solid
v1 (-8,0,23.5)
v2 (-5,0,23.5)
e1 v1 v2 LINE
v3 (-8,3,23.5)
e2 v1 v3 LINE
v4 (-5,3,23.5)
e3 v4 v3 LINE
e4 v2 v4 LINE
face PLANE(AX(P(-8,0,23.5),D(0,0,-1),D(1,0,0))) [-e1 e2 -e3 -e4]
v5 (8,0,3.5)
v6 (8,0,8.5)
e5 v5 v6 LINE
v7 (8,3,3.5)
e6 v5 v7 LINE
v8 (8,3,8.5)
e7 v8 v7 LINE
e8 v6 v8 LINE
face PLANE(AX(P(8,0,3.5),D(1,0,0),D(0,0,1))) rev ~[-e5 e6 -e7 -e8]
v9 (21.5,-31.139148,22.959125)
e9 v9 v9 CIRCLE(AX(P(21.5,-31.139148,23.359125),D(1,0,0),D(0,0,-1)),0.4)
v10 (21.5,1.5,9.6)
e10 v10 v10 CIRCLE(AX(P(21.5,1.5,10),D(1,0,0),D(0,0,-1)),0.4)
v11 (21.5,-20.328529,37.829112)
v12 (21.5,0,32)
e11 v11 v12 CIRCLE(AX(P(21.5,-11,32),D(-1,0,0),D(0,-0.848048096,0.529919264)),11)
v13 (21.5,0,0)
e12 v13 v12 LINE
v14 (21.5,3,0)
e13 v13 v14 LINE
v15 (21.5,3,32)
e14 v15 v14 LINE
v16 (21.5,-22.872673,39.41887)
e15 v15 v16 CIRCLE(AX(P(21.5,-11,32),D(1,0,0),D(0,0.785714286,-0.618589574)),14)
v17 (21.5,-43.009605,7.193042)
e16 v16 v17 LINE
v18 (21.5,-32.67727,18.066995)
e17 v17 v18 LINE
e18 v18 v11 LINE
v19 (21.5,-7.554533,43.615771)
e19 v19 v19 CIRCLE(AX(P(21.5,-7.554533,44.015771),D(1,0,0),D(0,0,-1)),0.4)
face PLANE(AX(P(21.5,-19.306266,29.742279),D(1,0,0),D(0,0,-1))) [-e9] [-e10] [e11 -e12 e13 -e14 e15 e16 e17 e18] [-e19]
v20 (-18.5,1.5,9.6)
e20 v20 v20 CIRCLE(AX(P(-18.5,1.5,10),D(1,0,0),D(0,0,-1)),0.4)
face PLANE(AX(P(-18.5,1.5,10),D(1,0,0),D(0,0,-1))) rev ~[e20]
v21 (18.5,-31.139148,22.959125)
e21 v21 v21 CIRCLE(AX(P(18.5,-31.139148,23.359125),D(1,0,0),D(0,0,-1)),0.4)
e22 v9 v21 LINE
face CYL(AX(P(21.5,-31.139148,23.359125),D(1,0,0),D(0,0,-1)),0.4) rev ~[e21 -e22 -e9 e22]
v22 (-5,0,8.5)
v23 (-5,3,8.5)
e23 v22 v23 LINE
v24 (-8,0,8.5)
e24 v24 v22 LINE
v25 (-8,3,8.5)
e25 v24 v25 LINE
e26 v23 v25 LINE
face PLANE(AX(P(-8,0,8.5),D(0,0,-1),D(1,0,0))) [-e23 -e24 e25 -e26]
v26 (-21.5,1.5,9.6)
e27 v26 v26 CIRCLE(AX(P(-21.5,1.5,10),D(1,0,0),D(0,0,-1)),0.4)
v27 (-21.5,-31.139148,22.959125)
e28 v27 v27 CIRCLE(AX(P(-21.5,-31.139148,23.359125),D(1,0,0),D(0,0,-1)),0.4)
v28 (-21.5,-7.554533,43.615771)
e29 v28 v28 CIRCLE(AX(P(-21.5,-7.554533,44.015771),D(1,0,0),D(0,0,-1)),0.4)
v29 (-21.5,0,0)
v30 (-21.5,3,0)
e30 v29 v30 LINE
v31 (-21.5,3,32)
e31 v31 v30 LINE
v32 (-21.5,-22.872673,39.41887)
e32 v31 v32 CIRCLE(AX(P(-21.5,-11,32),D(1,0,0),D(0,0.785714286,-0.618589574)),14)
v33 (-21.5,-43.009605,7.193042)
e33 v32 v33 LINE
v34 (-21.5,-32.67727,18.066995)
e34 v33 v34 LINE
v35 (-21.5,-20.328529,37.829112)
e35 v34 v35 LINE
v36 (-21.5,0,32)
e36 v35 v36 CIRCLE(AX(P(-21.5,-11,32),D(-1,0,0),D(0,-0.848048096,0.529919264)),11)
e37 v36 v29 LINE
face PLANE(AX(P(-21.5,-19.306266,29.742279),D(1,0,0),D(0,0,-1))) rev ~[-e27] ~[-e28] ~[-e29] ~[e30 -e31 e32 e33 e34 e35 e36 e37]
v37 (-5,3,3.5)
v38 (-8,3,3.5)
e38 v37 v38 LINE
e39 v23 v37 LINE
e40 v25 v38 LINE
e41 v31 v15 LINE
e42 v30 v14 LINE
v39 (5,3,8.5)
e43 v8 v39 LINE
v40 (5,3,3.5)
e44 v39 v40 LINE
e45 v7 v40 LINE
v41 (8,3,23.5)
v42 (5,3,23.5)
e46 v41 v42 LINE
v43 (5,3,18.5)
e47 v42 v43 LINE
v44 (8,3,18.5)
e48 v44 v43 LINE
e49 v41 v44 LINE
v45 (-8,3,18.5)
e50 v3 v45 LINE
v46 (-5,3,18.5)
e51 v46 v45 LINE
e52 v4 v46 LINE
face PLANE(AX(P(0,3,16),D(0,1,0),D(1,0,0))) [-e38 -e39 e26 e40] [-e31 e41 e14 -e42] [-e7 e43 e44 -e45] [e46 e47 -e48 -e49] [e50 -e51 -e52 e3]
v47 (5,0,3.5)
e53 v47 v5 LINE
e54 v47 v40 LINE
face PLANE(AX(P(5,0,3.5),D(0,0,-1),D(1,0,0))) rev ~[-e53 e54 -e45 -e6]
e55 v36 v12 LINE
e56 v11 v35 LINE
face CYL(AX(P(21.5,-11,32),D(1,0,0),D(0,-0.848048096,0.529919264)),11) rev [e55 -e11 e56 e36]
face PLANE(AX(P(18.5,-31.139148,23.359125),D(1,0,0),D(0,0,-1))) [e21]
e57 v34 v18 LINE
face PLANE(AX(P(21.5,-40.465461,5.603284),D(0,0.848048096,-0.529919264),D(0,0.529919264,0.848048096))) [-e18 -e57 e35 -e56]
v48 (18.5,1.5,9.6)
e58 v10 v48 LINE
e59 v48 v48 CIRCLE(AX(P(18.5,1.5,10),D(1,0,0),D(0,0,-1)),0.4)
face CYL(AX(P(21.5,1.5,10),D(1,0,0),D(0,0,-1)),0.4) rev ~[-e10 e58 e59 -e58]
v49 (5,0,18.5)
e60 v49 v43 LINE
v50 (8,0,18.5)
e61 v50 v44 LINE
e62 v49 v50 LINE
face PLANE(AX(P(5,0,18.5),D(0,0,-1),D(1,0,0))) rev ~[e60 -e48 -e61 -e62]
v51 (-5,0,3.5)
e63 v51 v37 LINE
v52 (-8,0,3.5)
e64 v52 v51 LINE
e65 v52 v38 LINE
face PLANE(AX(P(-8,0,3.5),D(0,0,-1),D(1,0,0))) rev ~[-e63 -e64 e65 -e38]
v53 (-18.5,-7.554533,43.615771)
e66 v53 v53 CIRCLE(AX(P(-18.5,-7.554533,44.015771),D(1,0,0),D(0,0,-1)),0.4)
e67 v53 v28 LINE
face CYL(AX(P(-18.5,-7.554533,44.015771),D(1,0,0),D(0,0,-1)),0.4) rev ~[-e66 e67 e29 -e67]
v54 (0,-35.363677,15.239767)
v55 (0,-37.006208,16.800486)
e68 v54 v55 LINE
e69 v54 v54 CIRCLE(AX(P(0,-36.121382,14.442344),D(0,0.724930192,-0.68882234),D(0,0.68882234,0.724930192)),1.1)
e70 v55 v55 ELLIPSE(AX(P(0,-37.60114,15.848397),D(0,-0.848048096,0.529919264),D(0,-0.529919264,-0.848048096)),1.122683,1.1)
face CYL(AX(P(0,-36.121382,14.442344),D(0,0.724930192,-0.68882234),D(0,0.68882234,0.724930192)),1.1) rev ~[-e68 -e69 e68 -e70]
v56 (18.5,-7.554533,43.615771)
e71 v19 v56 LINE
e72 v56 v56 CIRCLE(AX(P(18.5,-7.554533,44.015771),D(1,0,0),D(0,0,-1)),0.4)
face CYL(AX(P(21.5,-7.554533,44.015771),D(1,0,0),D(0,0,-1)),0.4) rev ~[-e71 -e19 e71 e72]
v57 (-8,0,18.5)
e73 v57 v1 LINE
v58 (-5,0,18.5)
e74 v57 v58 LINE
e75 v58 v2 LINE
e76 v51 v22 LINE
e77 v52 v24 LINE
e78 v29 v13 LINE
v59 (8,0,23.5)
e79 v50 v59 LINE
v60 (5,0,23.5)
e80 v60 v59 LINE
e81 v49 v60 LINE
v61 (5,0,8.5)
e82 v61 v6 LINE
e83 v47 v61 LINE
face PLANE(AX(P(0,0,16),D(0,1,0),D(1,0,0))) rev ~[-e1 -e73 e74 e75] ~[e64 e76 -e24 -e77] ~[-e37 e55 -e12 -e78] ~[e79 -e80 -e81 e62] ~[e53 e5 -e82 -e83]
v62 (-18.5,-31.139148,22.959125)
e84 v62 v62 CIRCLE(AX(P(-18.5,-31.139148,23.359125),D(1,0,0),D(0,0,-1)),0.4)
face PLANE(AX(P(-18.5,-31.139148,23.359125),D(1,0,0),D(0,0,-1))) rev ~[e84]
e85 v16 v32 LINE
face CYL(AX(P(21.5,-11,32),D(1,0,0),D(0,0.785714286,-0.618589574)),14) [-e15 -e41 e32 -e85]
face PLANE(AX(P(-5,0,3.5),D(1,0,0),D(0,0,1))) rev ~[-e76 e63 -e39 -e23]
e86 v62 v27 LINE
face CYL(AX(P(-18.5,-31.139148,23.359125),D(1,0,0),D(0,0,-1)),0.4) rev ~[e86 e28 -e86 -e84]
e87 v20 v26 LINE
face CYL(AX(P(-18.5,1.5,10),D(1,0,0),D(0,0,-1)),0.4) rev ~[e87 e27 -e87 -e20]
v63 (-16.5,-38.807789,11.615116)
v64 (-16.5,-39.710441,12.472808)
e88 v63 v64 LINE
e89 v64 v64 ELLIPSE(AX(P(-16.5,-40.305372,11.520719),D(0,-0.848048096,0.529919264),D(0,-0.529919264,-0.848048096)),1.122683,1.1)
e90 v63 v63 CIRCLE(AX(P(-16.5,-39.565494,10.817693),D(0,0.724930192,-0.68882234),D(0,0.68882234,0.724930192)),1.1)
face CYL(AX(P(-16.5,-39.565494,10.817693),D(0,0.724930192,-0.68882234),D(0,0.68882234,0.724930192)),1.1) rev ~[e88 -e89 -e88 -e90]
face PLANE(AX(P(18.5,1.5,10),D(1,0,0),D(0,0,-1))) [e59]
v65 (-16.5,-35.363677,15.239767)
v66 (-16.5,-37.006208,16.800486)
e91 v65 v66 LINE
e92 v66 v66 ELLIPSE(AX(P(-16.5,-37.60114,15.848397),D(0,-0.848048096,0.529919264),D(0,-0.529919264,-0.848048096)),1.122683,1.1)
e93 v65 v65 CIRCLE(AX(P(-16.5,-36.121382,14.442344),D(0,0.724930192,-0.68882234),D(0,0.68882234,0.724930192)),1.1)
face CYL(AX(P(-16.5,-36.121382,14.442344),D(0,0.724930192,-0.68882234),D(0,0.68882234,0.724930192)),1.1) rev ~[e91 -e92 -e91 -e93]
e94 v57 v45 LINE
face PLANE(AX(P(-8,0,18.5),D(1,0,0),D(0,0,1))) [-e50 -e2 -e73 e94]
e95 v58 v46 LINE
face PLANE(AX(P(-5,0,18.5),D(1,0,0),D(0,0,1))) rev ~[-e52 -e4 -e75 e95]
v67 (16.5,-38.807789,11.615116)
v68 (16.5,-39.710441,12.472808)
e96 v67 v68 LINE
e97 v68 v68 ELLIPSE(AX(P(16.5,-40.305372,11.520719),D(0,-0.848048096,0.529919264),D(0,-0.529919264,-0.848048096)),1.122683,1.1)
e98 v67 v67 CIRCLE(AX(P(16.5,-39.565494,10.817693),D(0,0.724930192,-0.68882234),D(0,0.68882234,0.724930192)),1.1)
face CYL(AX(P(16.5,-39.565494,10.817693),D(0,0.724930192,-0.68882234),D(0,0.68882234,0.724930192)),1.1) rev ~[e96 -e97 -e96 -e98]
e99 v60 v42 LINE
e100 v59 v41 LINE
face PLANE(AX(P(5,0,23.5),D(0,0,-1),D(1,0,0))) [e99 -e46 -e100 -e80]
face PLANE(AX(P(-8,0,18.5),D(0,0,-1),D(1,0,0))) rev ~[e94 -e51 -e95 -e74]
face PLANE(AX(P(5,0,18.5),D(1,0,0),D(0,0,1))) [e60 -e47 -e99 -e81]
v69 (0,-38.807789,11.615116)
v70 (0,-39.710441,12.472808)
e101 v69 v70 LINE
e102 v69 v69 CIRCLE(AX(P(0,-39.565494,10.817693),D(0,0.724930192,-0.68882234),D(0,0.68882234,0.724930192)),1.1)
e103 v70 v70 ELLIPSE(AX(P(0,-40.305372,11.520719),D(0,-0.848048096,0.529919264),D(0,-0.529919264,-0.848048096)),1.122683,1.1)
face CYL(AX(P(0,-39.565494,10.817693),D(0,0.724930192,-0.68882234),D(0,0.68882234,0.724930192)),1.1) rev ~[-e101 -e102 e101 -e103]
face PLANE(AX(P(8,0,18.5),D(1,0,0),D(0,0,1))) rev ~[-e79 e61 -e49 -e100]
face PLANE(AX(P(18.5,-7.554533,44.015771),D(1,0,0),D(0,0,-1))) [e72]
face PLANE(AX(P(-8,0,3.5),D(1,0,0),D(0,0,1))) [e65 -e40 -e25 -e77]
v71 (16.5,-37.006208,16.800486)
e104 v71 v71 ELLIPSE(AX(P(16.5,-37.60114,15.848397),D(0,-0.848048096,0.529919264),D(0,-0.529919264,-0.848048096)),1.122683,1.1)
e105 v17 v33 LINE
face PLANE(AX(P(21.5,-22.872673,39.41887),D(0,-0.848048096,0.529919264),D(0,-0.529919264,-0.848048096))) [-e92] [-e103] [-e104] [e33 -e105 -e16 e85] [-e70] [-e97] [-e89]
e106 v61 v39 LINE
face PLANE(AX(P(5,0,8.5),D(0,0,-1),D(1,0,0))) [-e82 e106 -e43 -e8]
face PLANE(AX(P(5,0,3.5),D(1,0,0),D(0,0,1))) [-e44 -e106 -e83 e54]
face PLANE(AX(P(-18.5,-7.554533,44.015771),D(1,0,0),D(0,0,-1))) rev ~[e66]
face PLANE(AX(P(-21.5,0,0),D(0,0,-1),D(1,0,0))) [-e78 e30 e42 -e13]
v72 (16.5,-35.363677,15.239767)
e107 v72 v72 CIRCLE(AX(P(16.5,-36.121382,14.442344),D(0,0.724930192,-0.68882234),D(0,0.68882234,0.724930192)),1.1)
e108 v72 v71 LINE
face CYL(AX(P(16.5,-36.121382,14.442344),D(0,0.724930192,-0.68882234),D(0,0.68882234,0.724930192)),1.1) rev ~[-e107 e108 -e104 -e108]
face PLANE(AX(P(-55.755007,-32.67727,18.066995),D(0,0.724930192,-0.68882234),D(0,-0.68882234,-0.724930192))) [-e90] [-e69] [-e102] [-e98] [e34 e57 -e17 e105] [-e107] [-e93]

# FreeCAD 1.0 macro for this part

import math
import FreeCAD as App
import Part
import Sketcher
Q = App.Units.Quantity

doc = App.newDocument("Part")
params = doc.addObject("Spreadsheet::Sheet", "Params")
for row, (alias, value) in enumerate([
    ("sketch1_width", "43 mm"),
    ("sketch1_height", "32 mm"),
    ("pad1_length", "3 mm"),
    ("sketch2_radius", "11 mm"),
    ("sketch2_radius2", "14 mm"),
    ("sketch2_length", "38 mm"),
    ("pad2_length", "43 mm"),
    ("sketch3_width", "3 mm"),
    ("sketch3_height", "5 mm"),
    ("sketch4_diameter", "0.8 mm"),
    ("pocket2_length", "3 mm"),
    ("sketch5_diameter", "0.8 mm"),
    ("pocket3_length", "3 mm"),
    ("sketch6_length", "15 mm"),
    ("sketch6_length2", "3 mm"),
    ("sketch7_diameter", "2.2 mm"),
], start=1):
    params.set(f"A{row}", alias)
    params.set(f"B{row}", "=" + value)
    params.setAlias(f"B{row}", alias)

body = doc.addObject("PartDesign::Body", "Body")

# Sketch on XZ plane
sketch1 = doc.addObject("Sketcher::SketchObject", "Sketch")
body.addObject(sketch1)
sketch1.AttachmentSupport = (doc.XZ_Plane, [""])
sketch1.MapMode = "FlatFace"
sketch1.addGeometry([
    Part.LineSegment(App.Vector(-22, 0, 0), App.Vector(-22, 32, 0)),
    Part.LineSegment(App.Vector(-22, 32, 0), App.Vector(22, 32, 0)),
    Part.LineSegment(App.Vector(22, 32, 0), App.Vector(22, 0, 0)),
    Part.LineSegment(App.Vector(22, 0, 0), App.Vector(-22, 0, 0)),
], False)
sketch1.addConstraint([
    Sketcher.Constraint("Coincident", 0, 2, 1, 1),
    Sketcher.Constraint("Coincident", 1, 2, 2, 1),
    Sketcher.Constraint("Coincident", 2, 2, 3, 1),
    Sketcher.Constraint("Coincident", 3, 2, 0, 1),
    Sketcher.Constraint("Vertical", 0),
    Sketcher.Constraint("Horizontal", 1),
    Sketcher.Constraint("Vertical", 2),
    Sketcher.Constraint("Horizontal", 3),
    Sketcher.Constraint("Symmetric", 2, 2, 3, 2, -1, 1),
    Sketcher.Constraint("DistanceX", 1, 1, 1, 2, 43.0),
    Sketcher.Constraint("DistanceY", 0, 1, 0, 2, 32.0),
])
sketch1.setExpression("Constraints[9]", "Params.sketch1_width")
sketch1.setExpression("Constraints[10]", "Params.sketch1_height")
pad1 = doc.addObject("PartDesign::Pad", "Pad")
body.addObject(pad1)
pad1.Profile = sketch1
pad1.setExpression("Length", "Params.pad1_length")
pad1.Reversed = True

# Sketch on YZ plane
sketch2 = doc.addObject("Sketcher::SketchObject", "Sketch001")
body.addObject(sketch2)
sketch2.AttachmentSupport = (doc.YZ_Plane, [""])
sketch2.MapMode = "FlatFace"
sketch2.AttachmentOffset = App.Placement(App.Vector(0, 0, 21.5), App.Rotation())
sketch2.addGeometry([
    Part.ArcOfCircle(Part.Circle(App.Vector(-11, 32, 0), App.Vector(0, 0, 1), 11), math.radians(0), math.radians(148)),  # 0
    Part.LineSegment(App.Vector(0, 32, 0), App.Vector(0, 23.3, 0)),  # 1
    Part.ArcOfCircle(Part.Circle(App.Vector(-11, 32, 0), App.Vector(0, 0, 1), 14), math.radians(-38), math.radians(148)),  # 2
    Part.LineSegment(App.Vector(-22.9, 39.4, 0), App.Vector(-43, 7.2, 0)),  # 3
    Part.LineSegment(App.Vector(-43, 7.2, 0), App.Vector(-40.5, 5.6, 0)),  # 4
    Part.LineSegment(App.Vector(-40.5, 5.6, 0), App.Vector(-20.3, 37.8, 0)),  # 5
], False)
sketch2.addConstraint([
    Sketcher.Constraint("Tangent", 0, 1, 1, 1),
    Sketcher.Constraint("Coincident", 1, 2, 2, 1),
    Sketcher.Constraint("Tangent", 2, 2, 3, 1),
    Sketcher.Constraint("Coincident", 3, 2, 4, 1),
    Sketcher.Constraint("Coincident", 4, 2, 5, 1),
    Sketcher.Constraint("Tangent", 5, 2, 0, 2),
    Sketcher.Constraint("Vertical", 1),
    Sketcher.Constraint("Coincident", 2, 3, 0, 3),
    Sketcher.Constraint("PointOnObject", 0, 1, -2),
    Sketcher.Constraint("Perpendicular", 3, 4),
    Sketcher.Constraint("Perpendicular", 4, 5),
    Sketcher.Constraint("Radius", 0, 11.0),
    Sketcher.Constraint("Radius", 2, 14.0),
    Sketcher.Constraint("Angle", 3, Q("-122 deg")),
    Sketcher.Constraint("Distance", 3, 38.0),
    Sketcher.Constraint("DistanceY", -1, 1, 0, 3, 32.0),
])
sketch2.setExpression("Constraints[11]", "Params.sketch2_radius")
sketch2.setExpression("Constraints[12]", "Params.sketch2_radius2")
sketch2.setExpression("Constraints[14]", "Params.sketch2_length")
pad2 = doc.addObject("PartDesign::Pad", "Pad001")
body.addObject(pad2)
pad2.Profile = sketch2
pad2.setExpression("Length", "Params.pad2_length")
pad2.Reversed = True

# Sketch on XZ plane
sketch3 = doc.addObject("Sketcher::SketchObject", "Sketch002")
body.addObject(sketch3)
sketch3.AttachmentSupport = (doc.XZ_Plane, [""])
sketch3.MapMode = "FlatFace"
sketch3.addGeometry([
    Part.LineSegment(App.Vector(5, 8.5, 0), App.Vector(5, 3.5, 0)),  # 0
    Part.LineSegment(App.Vector(5, 3.5, 0), App.Vector(8, 3.5, 0)),  # 1
    Part.LineSegment(App.Vector(8, 3.5, 0), App.Vector(8, 8.5, 0)),  # 2
    Part.LineSegment(App.Vector(8, 8.5, 0), App.Vector(5, 8.5, 0)),  # 3
    Part.LineSegment(App.Vector(5, 23.5, 0), App.Vector(5, 18.5, 0)),  # 4
    Part.LineSegment(App.Vector(5, 18.5, 0), App.Vector(8, 18.5, 0)),  # 5
    Part.LineSegment(App.Vector(8, 18.5, 0), App.Vector(8, 23.5, 0)),  # 6
    Part.LineSegment(App.Vector(8, 23.5, 0), App.Vector(5, 23.5, 0)),  # 7
    Part.LineSegment(App.Vector(-8, 8.5, 0), App.Vector(-8, 3.5, 0)),  # 8
    Part.LineSegment(App.Vector(-8, 3.5, 0), App.Vector(-5, 3.5, 0)),  # 9
    Part.LineSegment(App.Vector(-5, 3.5, 0), App.Vector(-5, 8.5, 0)),  # 10
    Part.LineSegment(App.Vector(-5, 8.5, 0), App.Vector(-8, 8.5, 0)),  # 11
    Part.LineSegment(App.Vector(-8, 23.5, 0), App.Vector(-8, 18.5, 0)),  # 12
    Part.LineSegment(App.Vector(-8, 18.5, 0), App.Vector(-5, 18.5, 0)),  # 13
    Part.LineSegment(App.Vector(-5, 18.5, 0), App.Vector(-5, 23.5, 0)),  # 14
    Part.LineSegment(App.Vector(-5, 23.5, 0), App.Vector(-8, 23.5, 0)),  # 15
], False)
sketch3.addConstraint([
    Sketcher.Constraint("Coincident", 0, 2, 1, 1),
    Sketcher.Constraint("Coincident", 1, 2, 2, 1),
    Sketcher.Constraint("Coincident", 2, 2, 3, 1),
    Sketcher.Constraint("Coincident", 3, 2, 0, 1),
    Sketcher.Constraint("Coincident", 4, 2, 5, 1),
    Sketcher.Constraint("Coincident", 5, 2, 6, 1),
    Sketcher.Constraint("Coincident", 6, 2, 7, 1),
    Sketcher.Constraint("Coincident", 7, 2, 4, 1),
    Sketcher.Constraint("Coincident", 8, 2, 9, 1),
    Sketcher.Constraint("Coincident", 9, 2, 10, 1),
    Sketcher.Constraint("Coincident", 10, 2, 11, 1),
    Sketcher.Constraint("Coincident", 11, 2, 8, 1),
    Sketcher.Constraint("Coincident", 12, 2, 13, 1),
    Sketcher.Constraint("Coincident", 13, 2, 14, 1),
    Sketcher.Constraint("Coincident", 14, 2, 15, 1),
    Sketcher.Constraint("Coincident", 15, 2, 12, 1),
    Sketcher.Constraint("Vertical", 0),
    Sketcher.Constraint("Horizontal", 1),
    Sketcher.Constraint("Vertical", 2),
    Sketcher.Constraint("Horizontal", 3),
    Sketcher.Constraint("Vertical", 4),
    Sketcher.Constraint("Horizontal", 5),
    Sketcher.Constraint("Vertical", 6),
    Sketcher.Constraint("Horizontal", 7),
    Sketcher.Constraint("Vertical", 8),
    Sketcher.Constraint("Horizontal", 9),
    Sketcher.Constraint("Vertical", 10),
    Sketcher.Constraint("Horizontal", 11),
    Sketcher.Constraint("Vertical", 12),
    Sketcher.Constraint("Horizontal", 13),
    Sketcher.Constraint("Vertical", 14),
    Sketcher.Constraint("Horizontal", 15),
    Sketcher.Constraint("Symmetric", 1, 2, 8, 2, -2),
    Sketcher.Constraint("Symmetric", 3, 2, 10, 2, -2),
    Sketcher.Constraint("Symmetric", 5, 2, 12, 2, -2),
    Sketcher.Constraint("Symmetric", 7, 2, 14, 2, -2),
    Sketcher.Constraint("Vertical", 3, 2, 4, 2),
    Sketcher.Constraint("Vertical", 2, 2, 5, 2),
    Sketcher.Constraint("Equal", 2, 4),
    Sketcher.Constraint("DistanceX", 1, 1, 1, 2, 3.0),
    Sketcher.Constraint("DistanceY", 0, 2, 0, 1, 5.0),
    Sketcher.Constraint("DistanceX", -1, 1, 0, 2, 5.0),
    Sketcher.Constraint("DistanceY", 3, 2, 4, 2, 10.0),
    Sketcher.Constraint("DistanceY", -1, 1, 0, 2, 3.5),
])
sketch3.setExpression("Constraints[39]", "Params.sketch3_width")
sketch3.setExpression("Constraints[40]", "Params.sketch3_height")
pocket1 = doc.addObject("PartDesign::Pocket", "Pocket")
body.addObject(pocket1)
pocket1.Profile = sketch3
pocket1.Type = "ThroughAll"

# Sketch on YZ plane
sketch4 = doc.addObject("Sketcher::SketchObject", "Sketch003")
body.addObject(sketch4)
sketch4.AttachmentSupport = (doc.YZ_Plane, [""])
sketch4.MapMode = "FlatFace"
sketch4.AttachmentOffset = App.Placement(App.Vector(0, 0, 21.5), App.Rotation())
sketch4.addGeometry([
    Part.Circle(App.Vector(1.5, 10, 0), App.Vector(0, 0, 1), 0.4),
    Part.Circle(App.Vector(-7.55, 44.02, 0), App.Vector(0, 0, 1), 0.4),
    Part.Circle(App.Vector(-31.14, 23.36, 0), App.Vector(0, 0, 1), 0.4),
], False)
sketch4.addConstraint([
    Sketcher.Constraint("Equal", 0, 1),
    Sketcher.Constraint("Equal", 1, 2),
    Sketcher.Constraint("Diameter", 0, 0.8),
    Sketcher.Constraint("DistanceY", -1, 1, 0, 3, 10.0),
    Sketcher.Constraint("DistanceX", -1, 1, 0, 3, 1.5),
    Sketcher.Constraint("DistanceY", -1, 1, 1, 3, 44.015771),
    Sketcher.Constraint("DistanceX", 1, 3, -1, 1, 7.554533),
    Sketcher.Constraint("DistanceX", 2, 3, -1, 1, 31.139148),
    Sketcher.Constraint("DistanceY", -1, 1, 2, 3, 23.359125),
])
sketch4.setExpression("Constraints[2]", "Params.sketch4_diameter")
pocket2 = doc.addObject("PartDesign::Pocket", "Pocket001")
body.addObject(pocket2)
pocket2.Profile = sketch4
pocket2.setExpression("Length", "Params.pocket2_length")

# Sketch on YZ plane
sketch5 = doc.addObject("Sketcher::SketchObject", "Sketch004")
body.addObject(sketch5)
sketch5.AttachmentSupport = (doc.YZ_Plane, [""])
sketch5.MapMode = "FlatFace"
sketch5.AttachmentOffset = App.Placement(App.Vector(0, 0, -18.5), App.Rotation())
sketch5.addGeometry([
    Part.Circle(App.Vector(1.5, 10, 0), App.Vector(0, 0, 1), 0.4),
    Part.Circle(App.Vector(-7.55, 44.02, 0), App.Vector(0, 0, 1), 0.4),
    Part.Circle(App.Vector(-31.14, 23.36, 0), App.Vector(0, 0, 1), 0.4),
], False)
sketch5.addConstraint([
    Sketcher.Constraint("Equal", 0, 1),
    Sketcher.Constraint("Equal", 1, 2),
    Sketcher.Constraint("Diameter", 0, 0.8),
    Sketcher.Constraint("DistanceY", -1, 1, 0, 3, 10.0),
    Sketcher.Constraint("DistanceX", -1, 1, 0, 3, 1.5),
    Sketcher.Constraint("DistanceY", -1, 1, 1, 3, 44.015771),
    Sketcher.Constraint("DistanceX", 1, 3, -1, 1, 7.554533),
    Sketcher.Constraint("DistanceX", 2, 3, -1, 1, 31.139148),
    Sketcher.Constraint("DistanceY", -1, 1, 2, 3, 23.359125),
])
sketch5.setExpression("Constraints[2]", "Params.sketch5_diameter")
pocket3 = doc.addObject("PartDesign::Pocket", "Pocket002")
body.addObject(pocket3)
pocket3.Profile = sketch5
pocket3.setExpression("Length", "Params.pocket3_length")

# Sketch on YZ plane
sketch6 = doc.addObject("Sketcher::SketchObject", "Sketch005")
body.addObject(sketch6)
sketch6.AttachmentSupport = (doc.YZ_Plane, [""])
sketch6.MapMode = "FlatFace"
sketch6.AttachmentOffset = App.Placement(App.Vector(0, 0, 21.5), App.Rotation())
sketch6.addGeometry([
    Part.LineSegment(App.Vector(-32.7, 18.1, 0), App.Vector(-43, 7.2, 0)),
    Part.LineSegment(App.Vector(-43, 7.2, 0), App.Vector(-40.5, 5.6, 0)),
    Part.LineSegment(App.Vector(-40.5, 5.6, 0), App.Vector(-32.7, 18.1, 0)),
], False)
sketch6.addConstraint([
    Sketcher.Constraint("Coincident", 0, 2, 1, 1),
    Sketcher.Constraint("Coincident", 1, 2, 2, 1),
    Sketcher.Constraint("Coincident", 2, 2, 0, 1),
    Sketcher.Constraint("Perpendicular", 1, 2),
    Sketcher.Constraint("Angle", 1, Q("-32 deg")),
    Sketcher.Constraint("Distance", 0, 15.0),
    Sketcher.Constraint("Distance", 1, 3.0),
    Sketcher.Constraint("DistanceX", 1, 2, -1, 1, 40.465461),
    Sketcher.Constraint("DistanceY", -1, 1, 0, 2, 7.193042),
])
sketch6.setExpression("Constraints[5]", "Params.sketch6_length")
sketch6.setExpression("Constraints[6]", "Params.sketch6_length2")
pocket4 = doc.addObject("PartDesign::Pocket", "Pocket003")
body.addObject(pocket4)
pocket4.Profile = sketch6
pocket4.Type = "ThroughAll"
pocket4.Midplane = True

# Sketch on an angled plane
sketch7 = doc.addObject("Sketcher::SketchObject", "Sketch006")
body.addObject(sketch7)
sketch7.Placement = App.Placement(App.Vector(0, -26.194403, 24.889693), App.Rotation(App.Vector(1, 0, 0), App.Vector(0, -0.68882234, -0.724930192), App.Vector(0, 0.724930192, -0.68882234), "ZXY"))
sketch7.addGeometry([
    Part.Circle(App.Vector(16.5, 19.4, 0), App.Vector(0, 0, 1), 1.1),  # 0
    Part.Circle(App.Vector(16.5, 14.4, 0), App.Vector(0, 0, 1), 1.1),  # 1
    Part.Circle(App.Vector(0, 14.4, 0), App.Vector(0, 0, 1), 1.1),  # 2
    Part.Circle(App.Vector(0, 19.4, 0), App.Vector(0, 0, 1), 1.1),  # 3
    Part.Circle(App.Vector(-16.5, 19.4, 0), App.Vector(0, 0, 1), 1.1),  # 4
    Part.Circle(App.Vector(-16.5, 14.4, 0), App.Vector(0, 0, 1), 1.1),  # 5
], False)
sketch7.addConstraint([
    Sketcher.Constraint("Equal", 0, 1),
    Sketcher.Constraint("Equal", 1, 2),
    Sketcher.Constraint("Equal", 2, 3),
    Sketcher.Constraint("Equal", 3, 4),
    Sketcher.Constraint("Equal", 4, 5),
    Sketcher.Constraint("Symmetric", 0, 3, 4, 3, -2),
    Sketcher.Constraint("Symmetric", 1, 3, 5, 3, -2),
    Sketcher.Constraint("PointOnObject", 2, 3, -2),
    Sketcher.Constraint("PointOnObject", 3, 3, -2),
    Sketcher.Constraint("Horizontal", 1, 3, 2, 3),
    Sketcher.Constraint("Horizontal", 0, 3, 3, 3),
    Sketcher.Constraint("Vertical", 0, 3, 1, 3),
    Sketcher.Constraint("Diameter", 0, 2.2),
    Sketcher.Constraint("DistanceY", 1, 3, 0, 3, 5.0),
    Sketcher.Constraint("DistanceX", 4, 3, 0, 3, 33.0),
    Sketcher.Constraint("DistanceY", -1, 1, 0, 3, 19.411524),
])
sketch7.setExpression("Constraints[12]", "Params.sketch7_diameter")
pocket5 = doc.addObject("PartDesign::Pocket", "Pocket004")
body.addObject(pocket5)
pocket5.Profile = sketch7
pocket5.Type = "ThroughAll"

doc.recompute()
